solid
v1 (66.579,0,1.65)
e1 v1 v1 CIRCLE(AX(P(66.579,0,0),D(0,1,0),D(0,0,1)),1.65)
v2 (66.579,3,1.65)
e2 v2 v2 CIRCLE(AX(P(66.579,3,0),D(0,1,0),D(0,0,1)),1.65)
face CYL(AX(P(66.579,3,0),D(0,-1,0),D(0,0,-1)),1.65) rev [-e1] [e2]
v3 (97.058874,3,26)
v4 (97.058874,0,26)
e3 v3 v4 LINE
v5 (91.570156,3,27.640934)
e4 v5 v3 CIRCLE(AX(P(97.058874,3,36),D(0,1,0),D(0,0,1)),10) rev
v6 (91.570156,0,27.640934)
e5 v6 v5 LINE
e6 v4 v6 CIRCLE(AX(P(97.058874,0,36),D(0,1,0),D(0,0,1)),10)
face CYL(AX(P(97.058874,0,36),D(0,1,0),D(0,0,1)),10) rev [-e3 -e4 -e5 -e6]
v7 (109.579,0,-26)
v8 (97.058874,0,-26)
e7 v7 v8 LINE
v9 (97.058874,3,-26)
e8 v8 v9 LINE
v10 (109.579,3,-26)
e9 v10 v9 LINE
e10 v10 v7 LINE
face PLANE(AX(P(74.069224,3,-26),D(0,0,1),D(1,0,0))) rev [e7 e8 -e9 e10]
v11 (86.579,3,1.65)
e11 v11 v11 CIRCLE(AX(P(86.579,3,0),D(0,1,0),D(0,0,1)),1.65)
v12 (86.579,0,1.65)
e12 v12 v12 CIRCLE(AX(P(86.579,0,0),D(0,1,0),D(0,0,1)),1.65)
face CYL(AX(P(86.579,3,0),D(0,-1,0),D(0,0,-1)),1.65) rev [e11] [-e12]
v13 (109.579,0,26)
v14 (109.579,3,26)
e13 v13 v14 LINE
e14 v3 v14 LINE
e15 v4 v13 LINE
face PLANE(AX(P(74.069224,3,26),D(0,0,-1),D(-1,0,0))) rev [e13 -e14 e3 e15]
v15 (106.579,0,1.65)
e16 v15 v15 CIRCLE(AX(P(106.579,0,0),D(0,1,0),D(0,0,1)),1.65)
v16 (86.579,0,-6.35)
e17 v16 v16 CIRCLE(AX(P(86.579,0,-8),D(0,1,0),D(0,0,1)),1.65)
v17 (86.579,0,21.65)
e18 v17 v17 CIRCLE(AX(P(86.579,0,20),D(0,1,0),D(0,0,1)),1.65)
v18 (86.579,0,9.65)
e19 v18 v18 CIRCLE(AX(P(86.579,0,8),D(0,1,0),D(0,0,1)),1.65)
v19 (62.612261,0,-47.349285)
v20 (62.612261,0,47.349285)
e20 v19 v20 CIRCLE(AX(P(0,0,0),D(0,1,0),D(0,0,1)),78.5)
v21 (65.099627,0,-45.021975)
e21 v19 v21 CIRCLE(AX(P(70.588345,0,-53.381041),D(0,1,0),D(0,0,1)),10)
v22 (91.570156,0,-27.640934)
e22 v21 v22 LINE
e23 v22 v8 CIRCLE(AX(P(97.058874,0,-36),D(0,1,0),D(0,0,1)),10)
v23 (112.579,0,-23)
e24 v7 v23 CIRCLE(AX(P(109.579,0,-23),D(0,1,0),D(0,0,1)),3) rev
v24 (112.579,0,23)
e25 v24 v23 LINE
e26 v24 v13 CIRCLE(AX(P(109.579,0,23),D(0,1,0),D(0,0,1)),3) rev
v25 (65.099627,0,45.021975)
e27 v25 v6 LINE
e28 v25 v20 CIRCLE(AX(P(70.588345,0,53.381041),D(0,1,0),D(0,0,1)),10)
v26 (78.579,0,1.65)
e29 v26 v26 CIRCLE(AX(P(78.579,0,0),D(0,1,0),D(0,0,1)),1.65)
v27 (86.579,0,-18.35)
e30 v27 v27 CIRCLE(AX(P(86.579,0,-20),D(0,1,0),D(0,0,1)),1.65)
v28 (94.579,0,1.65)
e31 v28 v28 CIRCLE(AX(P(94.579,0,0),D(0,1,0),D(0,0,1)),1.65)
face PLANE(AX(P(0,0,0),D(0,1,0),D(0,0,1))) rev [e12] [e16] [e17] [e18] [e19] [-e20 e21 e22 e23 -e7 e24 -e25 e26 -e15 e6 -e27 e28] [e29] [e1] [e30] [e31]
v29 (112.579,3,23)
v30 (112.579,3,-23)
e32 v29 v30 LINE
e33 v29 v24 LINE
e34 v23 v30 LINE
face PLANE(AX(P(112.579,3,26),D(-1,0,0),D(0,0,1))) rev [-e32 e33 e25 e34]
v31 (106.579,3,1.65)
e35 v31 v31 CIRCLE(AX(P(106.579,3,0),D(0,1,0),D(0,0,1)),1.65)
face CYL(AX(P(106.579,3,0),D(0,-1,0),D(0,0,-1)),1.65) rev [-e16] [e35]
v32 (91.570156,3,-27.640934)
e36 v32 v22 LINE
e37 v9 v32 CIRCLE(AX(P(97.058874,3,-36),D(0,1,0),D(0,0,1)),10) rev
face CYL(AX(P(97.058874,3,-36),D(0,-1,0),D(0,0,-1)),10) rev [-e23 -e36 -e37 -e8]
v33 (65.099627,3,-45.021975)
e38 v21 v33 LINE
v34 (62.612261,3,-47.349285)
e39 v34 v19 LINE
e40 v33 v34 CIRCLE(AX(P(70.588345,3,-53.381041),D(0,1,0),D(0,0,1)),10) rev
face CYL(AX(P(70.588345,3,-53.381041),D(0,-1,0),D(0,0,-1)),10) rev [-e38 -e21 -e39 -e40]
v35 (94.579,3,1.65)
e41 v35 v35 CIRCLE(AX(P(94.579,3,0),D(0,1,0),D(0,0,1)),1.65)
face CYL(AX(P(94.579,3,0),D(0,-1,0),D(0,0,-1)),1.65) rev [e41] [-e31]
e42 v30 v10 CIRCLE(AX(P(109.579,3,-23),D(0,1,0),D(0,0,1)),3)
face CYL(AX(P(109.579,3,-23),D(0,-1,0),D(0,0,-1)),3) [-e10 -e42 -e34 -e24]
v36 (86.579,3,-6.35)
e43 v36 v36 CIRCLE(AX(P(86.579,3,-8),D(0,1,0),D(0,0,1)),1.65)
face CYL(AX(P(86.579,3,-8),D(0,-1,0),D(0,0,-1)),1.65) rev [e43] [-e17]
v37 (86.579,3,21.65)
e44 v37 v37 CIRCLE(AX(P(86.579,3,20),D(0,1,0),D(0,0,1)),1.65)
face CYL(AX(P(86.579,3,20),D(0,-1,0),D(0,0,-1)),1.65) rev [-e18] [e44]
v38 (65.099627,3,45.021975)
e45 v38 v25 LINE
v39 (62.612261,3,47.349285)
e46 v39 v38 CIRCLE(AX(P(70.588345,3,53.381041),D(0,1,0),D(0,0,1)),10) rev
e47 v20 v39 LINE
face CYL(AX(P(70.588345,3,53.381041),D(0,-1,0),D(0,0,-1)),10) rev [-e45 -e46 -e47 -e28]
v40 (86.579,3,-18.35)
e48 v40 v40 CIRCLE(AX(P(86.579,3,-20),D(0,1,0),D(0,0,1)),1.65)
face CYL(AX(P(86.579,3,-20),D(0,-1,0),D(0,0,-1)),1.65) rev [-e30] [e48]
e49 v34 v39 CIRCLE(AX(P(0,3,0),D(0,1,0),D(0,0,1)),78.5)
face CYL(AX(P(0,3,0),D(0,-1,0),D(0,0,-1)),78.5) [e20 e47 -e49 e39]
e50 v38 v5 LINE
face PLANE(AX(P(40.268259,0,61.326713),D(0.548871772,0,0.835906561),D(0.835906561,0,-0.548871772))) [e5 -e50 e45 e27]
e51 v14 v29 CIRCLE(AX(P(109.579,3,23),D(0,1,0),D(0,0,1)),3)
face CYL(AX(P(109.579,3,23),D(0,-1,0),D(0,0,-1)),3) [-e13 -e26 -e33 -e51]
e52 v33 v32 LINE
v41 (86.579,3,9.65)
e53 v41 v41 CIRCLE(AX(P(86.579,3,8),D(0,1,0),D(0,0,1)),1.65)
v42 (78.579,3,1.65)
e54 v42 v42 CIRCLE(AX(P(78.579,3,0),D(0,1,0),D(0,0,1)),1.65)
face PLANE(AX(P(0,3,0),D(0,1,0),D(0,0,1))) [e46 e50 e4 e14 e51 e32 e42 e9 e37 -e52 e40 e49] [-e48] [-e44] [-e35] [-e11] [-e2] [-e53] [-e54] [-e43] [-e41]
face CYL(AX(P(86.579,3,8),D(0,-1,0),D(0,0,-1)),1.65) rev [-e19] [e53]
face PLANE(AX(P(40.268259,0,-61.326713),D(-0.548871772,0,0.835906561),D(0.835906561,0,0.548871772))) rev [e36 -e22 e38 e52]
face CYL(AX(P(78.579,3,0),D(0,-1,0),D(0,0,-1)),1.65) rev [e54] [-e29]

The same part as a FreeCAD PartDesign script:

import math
import FreeCAD as App
import Part
import Sketcher

V = App.Vector
Q = App.Units.Quantity


def edges_at(feature, points):
    """Names of the edges that pass closest to the given points."""
    edges = feature.Shape.Edges
    near = lambda p: min(range(len(edges)), key=lambda i: edges[i].distToShape(Part.Vertex(*p))[0])
    return sorted({f"Edge{near(p) + 1}" for p in points})

doc = App.newDocument("Part")
body = doc.addObject("PartDesign::Body", "Body")

sketch1 = doc.addObject("Sketcher::SketchObject", "Sketch")
body.addObject(sketch1)
sketch1.AttachmentSupport = (doc.XZ_Plane, [""])
sketch1.MapMode = "FlatFace"
sketch1.addGeometry([
    Part.LineSegment(V(74.1, 26, 0), V(112.6, 26, 0)),
    Part.LineSegment(V(112.6, 26, 0), V(112.6, -26, 0)),
    Part.LineSegment(V(112.6, -26, 0), V(74.1, -26, 0)),
    Part.ArcOfCircle(Part.Circle(V(0, 0, 0), V(0, 0, 1), 78.5), math.radians(19), math.radians(341)),
    Part.Circle(V(86.6, 20, 0), V(0, 0, 1), 1.6),
    Part.Circle(V(86.6, 8, 0), V(0, 0, 1), 1.6),
    Part.Circle(V(66.6, 0, 0), V(0, 0, 1), 1.6),
    Part.Circle(V(78.6, 0, 0), V(0, 0, 1), 1.6),
    Part.Circle(V(86.6, 0, 0), V(0, 0, 1), 1.6),
    Part.Circle(V(86.6, -8, 0), V(0, 0, 1), 1.6),
    Part.Circle(V(86.6, -20, 0), V(0, 0, 1), 1.6),
    Part.Circle(V(94.6, 0, 0), V(0, 0, 1), 1.6),
    Part.Circle(V(106.6, 0, 0), V(0, 0, 1), 1.6),
], False)
sketch1.addConstraint([
    Sketcher.Constraint("Coincident", 0, 2, 1, 1),
    Sketcher.Constraint("Coincident", 1, 2, 2, 1),
    Sketcher.Constraint("Coincident", 2, 2, 3, 2),
    Sketcher.Constraint("Coincident", 3, 1, 0, 1),
    Sketcher.Constraint("Horizontal", 0),
    Sketcher.Constraint("Vertical", 1),
    Sketcher.Constraint("Horizontal", 2),
    Sketcher.Constraint("Coincident", 3, 3, -1, 1),
    Sketcher.Constraint("Equal", 4, 5),
    Sketcher.Constraint("Equal", 5, 6),
    Sketcher.Constraint("Equal", 6, 7),
    Sketcher.Constraint("Equal", 7, 8),
    Sketcher.Constraint("Equal", 8, 9),
    Sketcher.Constraint("Equal", 9, 10),
    Sketcher.Constraint("Equal", 10, 11),
    Sketcher.Constraint("Equal", 11, 12),
    Sketcher.Constraint("Symmetric", 5, 3, 9, 3, -1),
    Sketcher.Constraint("Symmetric", 4, 3, 10, 3, -1),
    Sketcher.Constraint("PointOnObject", 6, 3, -1),
    Sketcher.Constraint("PointOnObject", 7, 3, -1),
    Sketcher.Constraint("PointOnObject", 8, 3, -1),
    Sketcher.Constraint("PointOnObject", 11, 3, -1),
    Sketcher.Constraint("PointOnObject", 12, 3, -1),
    Sketcher.Constraint("Vertical", 4, 3, 5, 3),
    Sketcher.Constraint("Vertical", 5, 3, 8, 3),
    Sketcher.Constraint("Vertical", 2, 2, 3, 1),
    Sketcher.Constraint("Diameter", 4, Q("3.3 mm")),
    Sketcher.Constraint("Radius", 3, Q("78.5 mm")),
    Sketcher.Constraint("DistanceY", 1, 2, 1, 1, Q("52 mm")),
    Sketcher.Constraint("DistanceY", -1, 1, 4, 3, Q("20 mm")),
    Sketcher.Constraint("DistanceY", -1, 1, 5, 3, Q("8 mm")),
    Sketcher.Constraint("DistanceX", 6, 3, 5, 3, Q("20 mm")),
    Sketcher.Constraint("DistanceX", 7, 3, 5, 3, Q("8 mm")),
    Sketcher.Constraint("DistanceX", 8, 3, 11, 3, Q("8 mm")),
    Sketcher.Constraint("DistanceX", 11, 3, 12, 3, Q("12 mm")),
    Sketcher.Constraint("DistanceX", 4, 3, 0, 2, Q("26 mm")),
    Sketcher.Constraint("DistanceX", -1, 1, 4, 3, Q("86.579 mm")),
])
pad1 = doc.addObject("PartDesign::Pad", "Pad")
body.addObject(pad1)
pad1.Profile = sketch1
pad1.Length = 3
pad1.Reversed = True

sketch2 = doc.addObject("Sketcher::SketchObject", "Sketch001")
body.addObject(sketch2)
sketch2.AttachmentSupport = (doc.XZ_Plane, [""])
sketch2.MapMode = "FlatFace"
sketch2.addGeometry([
    Part.ArcOfCircle(Part.Circle(V(0, 0, 0), V(0, 0, 1), 78), math.radians(19.34), math.radians(35.87)),
    Part.LineSegment(V(64, 46, 0), V(94, 26, 0)),
    Part.LineSegment(V(94, 26, 0), V(74, 26, 0)),
    Part.LineSegment(V(74, -26, 0), V(94, -26, 0)),
    Part.LineSegment(V(94, -26, 0), V(64, -46, 0)),
    Part.ArcOfCircle(Part.Circle(V(0, 0, 0), V(0, 0, 1), 78), math.radians(-35.87), math.radians(-19.34)),
], False)
sketch2.addConstraint([
    Sketcher.Constraint("Coincident", 0, 2, 1, 1),
    Sketcher.Constraint("Coincident", 1, 2, 2, 1),
    Sketcher.Constraint("Coincident", 2, 2, 0, 1),
    Sketcher.Constraint("Coincident", 3, 2, 4, 1),
    Sketcher.Constraint("Coincident", 4, 2, 5, 1),
    Sketcher.Constraint("Coincident", 5, 2, 3, 1),
    Sketcher.Constraint("Horizontal", 2),
    Sketcher.Constraint("Horizontal", 3),
    Sketcher.Constraint("Coincident", 0, 3, -1, 1),
    Sketcher.Constraint("Coincident", 5, 3, -1, 1),
    Sketcher.Constraint("Equal", 0, 5),
    Sketcher.Constraint("Symmetric", 1, 2, 3, 2, -1),
    Sketcher.Constraint("Vertical", 0, 2, 4, 2),
    Sketcher.Constraint("Radius", 0, Q("78.5 mm")),
    Sketcher.Constraint("DistanceX", 2, 2, 2, 1, Q("20 mm")),
    Sketcher.Constraint("DistanceY", -1, 1, 0, 2, Q("46 mm")),
    Sketcher.Constraint("DistanceY", -1, 1, 1, 2, Q("26 mm")),
])
pad2 = doc.addObject("PartDesign::Pad", "Pad001")
body.addObject(pad2)
pad2.Profile = sketch2
pad2.Length = 3
pad2.Reversed = True
doc.recompute()

fillet = doc.addObject("PartDesign::Fillet", "Fillet")
body.addObject(fillet)
fillet.Base = (pad2, edges_at(pad2, [
    (63.61, 1.5, 46),
    (94.069, 1.5, 26),
    (63.61, 1.5, -46),
    (94.069, 1.5, -26),
]))
fillet.Radius = 10
doc.recompute()

fillet2 = doc.addObject("PartDesign::Fillet", "Fillet001")
body.addObject(fillet2)
fillet2.Base = (fillet, edges_at(fillet, [(112.579, 1.5, -26), (112.579, 1.5, 26)]))
fillet2.Radius = 3

doc.recompute()
